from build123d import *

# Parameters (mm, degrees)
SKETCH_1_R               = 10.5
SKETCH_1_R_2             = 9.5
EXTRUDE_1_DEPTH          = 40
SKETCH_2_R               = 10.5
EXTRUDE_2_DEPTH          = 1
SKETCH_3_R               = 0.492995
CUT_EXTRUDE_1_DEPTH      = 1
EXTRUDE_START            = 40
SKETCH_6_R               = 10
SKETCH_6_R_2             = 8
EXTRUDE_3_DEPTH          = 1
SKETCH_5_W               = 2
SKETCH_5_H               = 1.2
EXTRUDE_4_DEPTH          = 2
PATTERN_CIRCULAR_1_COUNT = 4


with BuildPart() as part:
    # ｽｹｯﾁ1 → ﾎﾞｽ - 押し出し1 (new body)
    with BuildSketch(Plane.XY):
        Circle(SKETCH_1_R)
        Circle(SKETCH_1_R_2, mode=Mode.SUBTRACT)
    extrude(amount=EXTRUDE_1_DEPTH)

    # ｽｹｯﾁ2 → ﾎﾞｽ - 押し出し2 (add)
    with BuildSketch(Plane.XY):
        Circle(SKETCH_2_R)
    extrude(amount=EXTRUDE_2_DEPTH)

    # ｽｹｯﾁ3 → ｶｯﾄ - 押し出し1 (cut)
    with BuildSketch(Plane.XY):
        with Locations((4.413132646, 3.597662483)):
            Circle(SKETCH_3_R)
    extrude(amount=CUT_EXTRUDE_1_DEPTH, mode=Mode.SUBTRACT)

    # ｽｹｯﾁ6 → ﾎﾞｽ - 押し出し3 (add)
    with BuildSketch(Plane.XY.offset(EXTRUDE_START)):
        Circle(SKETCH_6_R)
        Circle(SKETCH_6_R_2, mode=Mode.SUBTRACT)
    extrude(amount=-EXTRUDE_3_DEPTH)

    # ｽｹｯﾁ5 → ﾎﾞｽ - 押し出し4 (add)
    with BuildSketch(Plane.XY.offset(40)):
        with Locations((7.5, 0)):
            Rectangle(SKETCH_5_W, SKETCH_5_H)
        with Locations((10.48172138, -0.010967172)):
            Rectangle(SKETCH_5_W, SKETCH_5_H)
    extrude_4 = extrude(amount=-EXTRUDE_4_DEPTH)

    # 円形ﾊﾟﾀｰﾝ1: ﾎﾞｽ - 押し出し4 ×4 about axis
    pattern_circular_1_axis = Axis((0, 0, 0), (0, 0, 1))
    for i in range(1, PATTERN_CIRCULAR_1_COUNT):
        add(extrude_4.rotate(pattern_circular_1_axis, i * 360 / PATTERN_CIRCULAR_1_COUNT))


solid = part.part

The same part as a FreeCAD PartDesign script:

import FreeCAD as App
import Part
import Sketcher

V = App.Vector
Q = App.Units.Quantity

doc = App.newDocument("Part")
params = doc.addObject("Spreadsheet::Sheet", "Params")
for row, (alias, value) in enumerate([
    ("sketch1_diameter", "21 mm"),
    ("sketch1_diameter2", "19 mm"),
    ("pad1_length", "40 mm"),
    ("sketch2_diameter", "21 mm"),
    ("pad2_length", "1 mm"),
    ("pocket1_length", "1 mm"),
    ("sketch4_diameter", "20 mm"),
    ("sketch4_diameter2", "16 mm"),
    ("pad3_length", "1 mm"),
    ("sketch5_width", "2 mm"),
    ("sketch5_height", "1.2 mm"),
    ("pad4_length", "2 mm"),
], start=1):
    params.set(f"A{row}", alias)
    params.set(f"B{row}", "=" + value)
    params.setAlias(f"B{row}", alias)

body = doc.addObject("PartDesign::Body", "Body")

# Sketch on XY plane
sketch1 = body.newObject("Sketcher::SketchObject", "Sketch")
sketch1.AttachmentSupport = (doc.getObject("XY_Plane"), [""])
sketch1.MapMode = "FlatFace"
sketch1.addGeometry(Part.Circle(V(0, 0, 0), V(0, 0, 1), 10), False)
sketch1.addGeometry(Part.Circle(V(0, 0, 0), V(0, 0, 1), 10), False)
sketch1.addConstraint(Sketcher.Constraint("Coincident", 0, 3, -1, 1))
sketch1.addConstraint(Sketcher.Constraint("Coincident", 1, 3, -1, 1))
sketch1.addConstraint(Sketcher.Constraint("Diameter", 0, Q("21 mm")))
sketch1.addConstraint(Sketcher.Constraint("Diameter", 1, Q("19 mm")))
sketch1.setExpression("Constraints[2]", "Params.sketch1_diameter")
sketch1.setExpression("Constraints[3]", "Params.sketch1_diameter2")
pad1 = body.newObject("PartDesign::Pad", "Pad")
pad1.Profile = sketch1
pad1.setExpression("Length", "Params.pad1_length")

# Sketch on XY plane
sketch2 = body.newObject("Sketcher::SketchObject", "Sketch001")
sketch2.AttachmentSupport = (doc.getObject("XY_Plane"), [""])
sketch2.MapMode = "FlatFace"
sketch2.addGeometry(Part.Circle(V(0, 0, 0), V(0, 0, 1), 10), False)
sketch2.addConstraint(Sketcher.Constraint("Coincident", 0, 3, -1, 1))
sketch2.addConstraint(Sketcher.Constraint("Diameter", 0, Q("21 mm")))
sketch2.setExpression("Constraints[1]", "Params.sketch2_diameter")
pad2 = body.newObject("PartDesign::Pad", "Pad001")
pad2.Profile = sketch2
pad2.setExpression("Length", "Params.pad2_length")

# Sketch on XY plane
sketch3 = body.newObject("Sketcher::SketchObject", "Sketch002")
sketch3.AttachmentSupport = (doc.getObject("XY_Plane"), [""])
sketch3.MapMode = "FlatFace"
sketch3.addGeometry(Part.Circle(V(4.41, 3.6, 0), V(0, 0, 1), 0.49), False)
sketch3.addConstraint(Sketcher.Constraint("Diameter", 0, Q("0.98599 mm")))
sketch3.addConstraint(Sketcher.Constraint("DistanceX", -1, 1, 0, 3, Q("4.413133 mm")))
sketch3.addConstraint(Sketcher.Constraint("DistanceY", -1, 1, 0, 3, Q("3.597662 mm")))
pocket1 = body.newObject("PartDesign::Pocket", "Pocket")
pocket1.Profile = sketch3
pocket1.setExpression("Length", "Params.pocket1_length")
pocket1.Reversed = True

# Sketch on XY plane
sketch4 = body.newObject("Sketcher::SketchObject", "Sketch003")
sketch4.AttachmentSupport = (doc.getObject("XY_Plane"), [""])
sketch4.MapMode = "FlatFace"
sketch4.AttachmentOffset = App.Placement(V(0, 0, 40), App.Rotation())
sketch4.addGeometry(Part.Circle(V(0, 0, 0), V(0, 0, 1), 10), False)
sketch4.addGeometry(Part.Circle(V(0, 0, 0), V(0, 0, 1), 8), False)
sketch4.addConstraint(Sketcher.Constraint("Coincident", 0, 3, -1, 1))
sketch4.addConstraint(Sketcher.Constraint("Coincident", 1, 3, -1, 1))
sketch4.addConstraint(Sketcher.Constraint("Diameter", 0, Q("20 mm")))
sketch4.addConstraint(Sketcher.Constraint("Diameter", 1, Q("16 mm")))
sketch4.setExpression("Constraints[2]", "Params.sketch4_diameter")
sketch4.setExpression("Constraints[3]", "Params.sketch4_diameter2")
pad3 = body.newObject("PartDesign::Pad", "Pad002")
pad3.Profile = sketch4
pad3.setExpression("Length", "Params.pad3_length")
pad3.Reversed = True

# Sketch on XY plane
sketch5 = body.newObject("Sketcher::SketchObject", "Sketch004")
sketch5.AttachmentSupport = (doc.getObject("XY_Plane"), [""])
sketch5.MapMode = "FlatFace"
sketch5.AttachmentOffset = App.Placement(V(0, 0, 40), App.Rotation())
sketch5.addGeometry(Part.LineSegment(V(6.5, 0.6, 0), V(6.5, -0.6, 0)), False)
sketch5.addGeometry(Part.LineSegment(V(6.5, -0.6, 0), V(8.5, -0.6, 0)), False)
sketch5.addGeometry(Part.LineSegment(V(8.5, -0.6, 0), V(8.5, 0.6, 0)), False)
sketch5.addGeometry(Part.LineSegment(V(8.5, 0.6, 0), V(6.5, 0.6, 0)), False)
sketch5.addGeometry(Part.LineSegment(V(9.5, 0.6, 0), V(9.5, -0.6, 0)), False)
sketch5.addGeometry(Part.LineSegment(V(9.5, -0.6, 0), V(11.5, -0.6, 0)), False)
sketch5.addGeometry(Part.LineSegment(V(11.5, -0.6, 0), V(11.5, 0.6, 0)), False)
sketch5.addGeometry(Part.LineSegment(V(11.5, 0.6, 0), V(9.5, 0.6, 0)), False)
sketch5.addConstraint(Sketcher.Constraint("Coincident", 0, 2, 1, 1))
sketch5.addConstraint(Sketcher.Constraint("Coincident", 1, 2, 2, 1))
sketch5.addConstraint(Sketcher.Constraint("Coincident", 2, 2, 3, 1))
sketch5.addConstraint(Sketcher.Constraint("Coincident", 3, 2, 0, 1))
sketch5.addConstraint(Sketcher.Constraint("Coincident", 4, 2, 5, 1))
sketch5.addConstraint(Sketcher.Constraint("Coincident", 5, 2, 6, 1))
sketch5.addConstraint(Sketcher.Constraint("Coincident", 6, 2, 7, 1))
sketch5.addConstraint(Sketcher.Constraint("Coincident", 7, 2, 4, 1))
sketch5.addConstraint(Sketcher.Constraint("Vertical", 0))
sketch5.addConstraint(Sketcher.Constraint("Horizontal", 1))
sketch5.addConstraint(Sketcher.Constraint("Vertical", 2))
sketch5.addConstraint(Sketcher.Constraint("Horizontal", 3))
sketch5.addConstraint(Sketcher.Constraint("Vertical", 4))
sketch5.addConstraint(Sketcher.Constraint("Horizontal", 5))
sketch5.addConstraint(Sketcher.Constraint("Vertical", 6))
sketch5.addConstraint(Sketcher.Constraint("Horizontal", 7))
sketch5.addConstraint(Sketcher.Constraint("Equal", 3, 5))
sketch5.addConstraint(Sketcher.Constraint("Equal", 2, 4))
sketch5.addConstraint(Sketcher.Constraint("DistanceX", 1, 1, 1, 2, Q("2 mm")))
sketch5.addConstraint(Sketcher.Constraint("DistanceY", 0, 2, 0, 1, Q("1.2 mm")))
sketch5.addConstraint(Sketcher.Constraint("DistanceX", -1, 1, 0, 2, Q("6.5 mm")))
sketch5.addConstraint(Sketcher.Constraint("DistanceY", 0, 2, -1, 1, Q("0.6 mm")))
sketch5.addConstraint(Sketcher.Constraint("DistanceX", -1, 1, 4, 2, Q("9.481721 mm")))
sketch5.addConstraint(Sketcher.Constraint("DistanceY", 4, 2, -1, 1, Q("0.610967 mm")))
sketch5.setExpression("Constraints[18]", "Params.sketch5_width")
sketch5.setExpression("Constraints[19]", "Params.sketch5_height")
pad4 = body.newObject("PartDesign::Pad", "Pad003")
pad4.Profile = sketch5
pad4.setExpression("Length", "Params.pad4_length")
pad4.Reversed = True
doc.recompute()

polarpattern = body.newObject("PartDesign::PolarPattern", "PolarPattern")
polarpattern.Originals = [pad4]
polarpattern.Axis = (doc.getObject("Z_Axis"), [""])
polarpattern.Angle = 360
polarpattern.Occurrences = 4
body.Tip = polarpattern

doc.recompute()
